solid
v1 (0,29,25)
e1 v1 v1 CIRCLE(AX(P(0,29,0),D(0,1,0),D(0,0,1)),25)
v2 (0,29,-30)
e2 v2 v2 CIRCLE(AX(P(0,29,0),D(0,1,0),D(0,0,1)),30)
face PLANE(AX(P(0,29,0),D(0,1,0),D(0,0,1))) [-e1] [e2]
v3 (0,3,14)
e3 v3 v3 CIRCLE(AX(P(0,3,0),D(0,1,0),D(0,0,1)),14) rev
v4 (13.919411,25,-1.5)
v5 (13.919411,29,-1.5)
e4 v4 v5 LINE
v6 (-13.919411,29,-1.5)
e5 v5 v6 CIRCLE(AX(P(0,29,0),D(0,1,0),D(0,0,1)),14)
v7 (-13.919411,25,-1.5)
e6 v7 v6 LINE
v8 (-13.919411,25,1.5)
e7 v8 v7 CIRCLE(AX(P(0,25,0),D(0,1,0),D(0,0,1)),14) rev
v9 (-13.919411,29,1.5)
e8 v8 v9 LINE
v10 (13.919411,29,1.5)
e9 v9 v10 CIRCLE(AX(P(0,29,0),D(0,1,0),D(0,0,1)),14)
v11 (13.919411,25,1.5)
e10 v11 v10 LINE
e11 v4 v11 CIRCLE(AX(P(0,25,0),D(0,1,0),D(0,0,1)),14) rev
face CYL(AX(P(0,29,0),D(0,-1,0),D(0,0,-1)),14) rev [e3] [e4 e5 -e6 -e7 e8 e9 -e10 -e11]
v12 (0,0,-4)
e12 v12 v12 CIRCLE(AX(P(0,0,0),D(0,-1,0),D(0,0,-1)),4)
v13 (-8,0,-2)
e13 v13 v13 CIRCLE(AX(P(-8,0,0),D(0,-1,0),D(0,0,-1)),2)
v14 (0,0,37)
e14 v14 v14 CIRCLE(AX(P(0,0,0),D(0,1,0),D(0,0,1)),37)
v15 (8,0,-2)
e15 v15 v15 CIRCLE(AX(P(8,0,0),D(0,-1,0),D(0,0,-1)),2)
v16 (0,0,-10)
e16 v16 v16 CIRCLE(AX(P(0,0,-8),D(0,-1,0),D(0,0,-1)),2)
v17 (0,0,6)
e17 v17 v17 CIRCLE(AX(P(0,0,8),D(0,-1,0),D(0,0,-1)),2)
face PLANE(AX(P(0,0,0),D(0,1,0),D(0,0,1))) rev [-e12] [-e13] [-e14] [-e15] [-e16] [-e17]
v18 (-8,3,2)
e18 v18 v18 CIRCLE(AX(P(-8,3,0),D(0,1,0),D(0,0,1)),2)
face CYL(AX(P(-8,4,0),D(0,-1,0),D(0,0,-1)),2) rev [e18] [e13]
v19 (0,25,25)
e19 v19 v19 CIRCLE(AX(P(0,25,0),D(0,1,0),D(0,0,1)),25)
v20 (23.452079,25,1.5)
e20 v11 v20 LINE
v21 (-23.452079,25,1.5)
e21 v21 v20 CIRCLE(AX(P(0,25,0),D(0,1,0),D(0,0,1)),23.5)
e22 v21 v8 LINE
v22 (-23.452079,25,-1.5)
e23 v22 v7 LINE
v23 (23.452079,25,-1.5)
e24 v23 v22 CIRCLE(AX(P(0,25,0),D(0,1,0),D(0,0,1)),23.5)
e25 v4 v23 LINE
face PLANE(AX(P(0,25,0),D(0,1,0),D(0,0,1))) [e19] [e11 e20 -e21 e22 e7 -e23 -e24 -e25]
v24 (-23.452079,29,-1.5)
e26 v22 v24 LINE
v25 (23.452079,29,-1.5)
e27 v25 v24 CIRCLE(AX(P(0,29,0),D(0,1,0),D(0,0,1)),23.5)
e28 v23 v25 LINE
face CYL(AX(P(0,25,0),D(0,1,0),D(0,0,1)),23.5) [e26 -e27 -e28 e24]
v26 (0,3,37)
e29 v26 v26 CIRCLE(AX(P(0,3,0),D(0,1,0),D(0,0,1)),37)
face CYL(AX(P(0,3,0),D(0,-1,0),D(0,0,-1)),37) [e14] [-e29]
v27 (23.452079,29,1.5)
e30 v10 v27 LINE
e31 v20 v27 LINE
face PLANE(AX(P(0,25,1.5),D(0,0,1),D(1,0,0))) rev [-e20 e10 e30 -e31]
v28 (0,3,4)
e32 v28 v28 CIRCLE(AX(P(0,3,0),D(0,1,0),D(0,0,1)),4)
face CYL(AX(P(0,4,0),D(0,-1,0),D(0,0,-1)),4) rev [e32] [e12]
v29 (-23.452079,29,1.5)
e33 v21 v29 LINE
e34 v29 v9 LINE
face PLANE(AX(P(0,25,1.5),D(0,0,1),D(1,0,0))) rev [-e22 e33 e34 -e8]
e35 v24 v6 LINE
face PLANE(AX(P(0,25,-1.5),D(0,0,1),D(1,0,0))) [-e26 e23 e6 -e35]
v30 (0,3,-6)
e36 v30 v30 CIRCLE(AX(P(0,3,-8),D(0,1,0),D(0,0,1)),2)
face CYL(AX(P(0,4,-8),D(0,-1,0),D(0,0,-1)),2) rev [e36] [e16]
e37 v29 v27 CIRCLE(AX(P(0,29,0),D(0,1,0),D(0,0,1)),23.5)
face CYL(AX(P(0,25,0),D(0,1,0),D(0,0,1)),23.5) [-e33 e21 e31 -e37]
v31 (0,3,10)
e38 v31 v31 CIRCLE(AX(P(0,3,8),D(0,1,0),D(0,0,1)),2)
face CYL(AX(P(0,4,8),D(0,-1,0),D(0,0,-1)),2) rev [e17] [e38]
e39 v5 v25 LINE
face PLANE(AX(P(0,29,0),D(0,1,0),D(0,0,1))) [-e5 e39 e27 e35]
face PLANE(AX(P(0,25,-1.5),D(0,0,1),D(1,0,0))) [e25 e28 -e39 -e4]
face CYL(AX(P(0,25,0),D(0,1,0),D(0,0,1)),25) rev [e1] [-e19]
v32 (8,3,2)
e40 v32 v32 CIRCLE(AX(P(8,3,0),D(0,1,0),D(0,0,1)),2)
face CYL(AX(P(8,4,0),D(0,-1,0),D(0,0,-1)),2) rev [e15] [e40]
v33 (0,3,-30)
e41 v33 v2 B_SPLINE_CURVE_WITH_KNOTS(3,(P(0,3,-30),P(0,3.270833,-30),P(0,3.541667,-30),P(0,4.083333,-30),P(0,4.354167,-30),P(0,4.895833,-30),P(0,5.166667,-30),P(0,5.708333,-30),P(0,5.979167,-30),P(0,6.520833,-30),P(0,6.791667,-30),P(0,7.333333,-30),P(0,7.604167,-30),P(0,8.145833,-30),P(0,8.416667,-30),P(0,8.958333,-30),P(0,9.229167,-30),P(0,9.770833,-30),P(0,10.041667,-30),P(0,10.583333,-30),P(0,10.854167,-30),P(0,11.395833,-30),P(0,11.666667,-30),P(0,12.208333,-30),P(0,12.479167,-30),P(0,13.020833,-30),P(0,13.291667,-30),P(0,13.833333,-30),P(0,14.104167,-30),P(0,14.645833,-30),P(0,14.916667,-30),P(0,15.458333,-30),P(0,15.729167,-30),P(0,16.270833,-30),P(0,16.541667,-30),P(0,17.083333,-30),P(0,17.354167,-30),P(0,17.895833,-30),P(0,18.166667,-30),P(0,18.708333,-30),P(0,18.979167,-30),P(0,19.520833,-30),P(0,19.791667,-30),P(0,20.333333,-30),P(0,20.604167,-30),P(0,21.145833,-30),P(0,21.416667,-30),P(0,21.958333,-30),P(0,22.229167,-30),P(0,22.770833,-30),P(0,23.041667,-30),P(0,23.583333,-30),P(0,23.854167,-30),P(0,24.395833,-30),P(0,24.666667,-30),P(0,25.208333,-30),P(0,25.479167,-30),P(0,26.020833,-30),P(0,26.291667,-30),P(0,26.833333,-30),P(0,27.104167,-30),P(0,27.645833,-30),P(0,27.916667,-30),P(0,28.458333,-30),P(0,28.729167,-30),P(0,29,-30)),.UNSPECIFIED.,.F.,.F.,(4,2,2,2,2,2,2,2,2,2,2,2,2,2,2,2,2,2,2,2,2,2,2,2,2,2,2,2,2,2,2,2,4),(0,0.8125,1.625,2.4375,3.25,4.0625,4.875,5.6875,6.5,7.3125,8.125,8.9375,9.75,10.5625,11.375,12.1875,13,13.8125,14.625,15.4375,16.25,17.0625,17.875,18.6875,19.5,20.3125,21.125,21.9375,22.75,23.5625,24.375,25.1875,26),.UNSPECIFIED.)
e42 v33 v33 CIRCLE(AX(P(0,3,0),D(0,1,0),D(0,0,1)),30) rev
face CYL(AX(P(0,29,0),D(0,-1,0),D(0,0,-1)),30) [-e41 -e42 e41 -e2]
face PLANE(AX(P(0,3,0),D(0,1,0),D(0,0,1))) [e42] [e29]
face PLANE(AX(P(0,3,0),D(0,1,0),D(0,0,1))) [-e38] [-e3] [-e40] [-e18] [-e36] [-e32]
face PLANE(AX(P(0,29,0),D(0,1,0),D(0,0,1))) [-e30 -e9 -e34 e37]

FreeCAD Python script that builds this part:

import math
import FreeCAD as App
import Part
import Sketcher

V = App.Vector
Q = App.Units.Quantity

doc = App.newDocument("Part")
body = doc.addObject("PartDesign::Body", "Body")

# Sketch on XZ plane
sketch1 = body.newObject("Sketcher::SketchObject", "Sketch")
sketch1.AttachmentSupport = (doc.getObject("XZ_Plane"), [""])
sketch1.MapMode = "FlatFace"
sketch1.addGeometry(Part.Circle(V(0, 0, 0), V(0, 0, 1), 37), False)
sketch1.addConstraint(Sketcher.Constraint("Coincident", 0, 3, -1, 1))
sketch1.addConstraint(Sketcher.Constraint("Diameter", 0, Q("74 mm")))
pad1 = body.newObject("PartDesign::Pad", "Pad")
pad1.Profile = sketch1
pad1.Length = 3
pad1.Reversed = True

# Sketch on XZ plane
sketch2 = body.newObject("Sketcher::SketchObject", "Sketch001")
sketch2.AttachmentSupport = (doc.getObject("XZ_Plane"), [""])
sketch2.MapMode = "FlatFace"
sketch2.addGeometry(Part.Circle(V(0, 0, 0), V(0, 0, 1), 30), False)
sketch2.addGeometry(Part.Circle(V(0, 0, 0), V(0, 0, 1), 14), False)
sketch2.addConstraint(Sketcher.Constraint("Coincident", 0, 3, -1, 1))
sketch2.addConstraint(Sketcher.Constraint("Coincident", 1, 3, -1, 1))
sketch2.addConstraint(Sketcher.Constraint("Diameter", 0, Q("60 mm")))
sketch2.addConstraint(Sketcher.Constraint("Diameter", 1, Q("28 mm")))
pad2 = body.newObject("PartDesign::Pad", "Pad001")
pad2.Profile = sketch2
pad2.Length = 29
pad2.Reversed = True

# Sketch on XZ plane
sketch3 = body.newObject("Sketcher::SketchObject", "Sketch002")
sketch3.AttachmentSupport = (doc.getObject("XZ_Plane"), [""])
sketch3.MapMode = "FlatFace"
sketch3.AttachmentOffset = App.Placement(V(0, 0, -25), App.Rotation())
sketch3.addGeometry(Part.Circle(V(0, 0, 0), V(0, 0, 1), 25), False)
sketch3.addGeometry(Part.ArcOfCircle(Part.Circle(V(0, 0, 0), V(0, 0, 1), 23.5), math.radians(4), math.radians(176)), False)
sketch3.addGeometry(Part.LineSegment(V(-23.5, 1.5, 0), V(-13.9, 1.5, 0)), False)
sketch3.addGeometry(Part.ArcOfCircle(Part.Circle(V(0, 0, 0), V(0, 0, 1), 14), math.radians(173.85), math.radians(186.15)), False)
sketch3.addGeometry(Part.LineSegment(V(-13.9, -1.5, 0), V(-23.5, -1.5, 0)), False)
sketch3.addGeometry(Part.ArcOfCircle(Part.Circle(V(0, 0, 0), V(0, 0, 1), 23.5), math.radians(-176), math.radians(-4)), False)
sketch3.addGeometry(Part.LineSegment(V(23.5, -1.5, 0), V(13.9, -1.5, 0)), False)
sketch3.addGeometry(Part.ArcOfCircle(Part.Circle(V(0, 0, 0), V(0, 0, 1), 14), math.radians(-6.15), math.radians(0)), False)
sketch3.addGeometry(Part.ArcOfCircle(Part.Circle(V(0, 0, 0), V(0, 0, 1), 14), math.radians(0), math.radians(6.15)), False)
sketch3.addGeometry(Part.LineSegment(V(13.9, 1.5, 0), V(23.5, 1.5, 0)), False)
sketch3.addConstraint(Sketcher.Constraint("Coincident", 1, 2, 2, 1))
sketch3.addConstraint(Sketcher.Constraint("Coincident", 2, 2, 3, 1))
sketch3.addConstraint(Sketcher.Constraint("Coincident", 3, 2, 4, 1))
sketch3.addConstraint(Sketcher.Constraint("Coincident", 4, 2, 5, 1))
sketch3.addConstraint(Sketcher.Constraint("Coincident", 5, 2, 6, 1))
sketch3.addConstraint(Sketcher.Constraint("Coincident", 6, 2, 7, 1))
sketch3.addConstraint(Sketcher.Constraint("Tangent", 7, 2, 8, 1))
sketch3.addConstraint(Sketcher.Constraint("Coincident", 8, 2, 9, 1))
sketch3.addConstraint(Sketcher.Constraint("Coincident", 9, 2, 1, 1))
sketch3.addConstraint(Sketcher.Constraint("Horizontal", 2))
sketch3.addConstraint(Sketcher.Constraint("Horizontal", 4))
sketch3.addConstraint(Sketcher.Constraint("Horizontal", 6))
sketch3.addConstraint(Sketcher.Constraint("Horizontal", 9))
sketch3.addConstraint(Sketcher.Constraint("Coincident", 0, 3, -1, 1))
sketch3.addConstraint(Sketcher.Constraint("Coincident", 1, 3, -1, 1))
sketch3.addConstraint(Sketcher.Constraint("Coincident", 3, 3, -1, 1))
sketch3.addConstraint(Sketcher.Constraint("Coincident", 5, 3, -1, 1))
sketch3.addConstraint(Sketcher.Constraint("Coincident", 7, 3, -1, 1))
sketch3.addConstraint(Sketcher.Constraint("Equal", 1, 5))
sketch3.addConstraint(Sketcher.Constraint("Equal", 3, 7))
sketch3.addConstraint(Sketcher.Constraint("Equal", 7, 8))
sketch3.addConstraint(Sketcher.Constraint("PointOnObject", 7, 2, -1))
sketch3.addConstraint(Sketcher.Constraint("Horizontal", 4, 2, 5, 2))
sketch3.addConstraint(Sketcher.Constraint("Horizontal", 2, 2, 8, 2))
sketch3.addConstraint(Sketcher.Constraint("Vertical", 2, 2, 3, 2))
sketch3.addConstraint(Sketcher.Constraint("Diameter", 0, Q("50 mm")))
sketch3.addConstraint(Sketcher.Constraint("Radius", 3, Q("14 mm")))
sketch3.addConstraint(Sketcher.Constraint("Radius", 1, Q("23.5 mm")))
sketch3.addConstraint(Sketcher.Constraint("DistanceY", 3, 2, 2, 2, Q("3 mm")))
pocket1 = body.newObject("PartDesign::Pocket", "Pocket")
pocket1.Profile = sketch3
pocket1.Length = 4

# Sketch on XZ plane
sketch4 = body.newObject("Sketcher::SketchObject", "Sketch003")
sketch4.AttachmentSupport = (doc.getObject("XZ_Plane"), [""])
sketch4.MapMode = "FlatFace"
sketch4.addGeometry(Part.Circle(V(0, 0, 0), V(0, 0, 1), 4), False)
sketch4.addGeometry(Part.Circle(V(-8, 0, 0), V(0, 0, 1), 2), False)
sketch4.addGeometry(Part.Circle(V(0, 8, 0), V(0, 0, 1), 2), False)
sketch4.addGeometry(Part.Circle(V(8, 0, 0), V(0, 0, 1), 2), False)
sketch4.addGeometry(Part.Circle(V(0, -8, 0), V(0, 0, 1), 2), False)
sketch4.addConstraint(Sketcher.Constraint("Coincident", 0, 3, -1, 1))
sketch4.addConstraint(Sketcher.Constraint("Equal", 1, 2))
sketch4.addConstraint(Sketcher.Constraint("Equal", 2, 3))
sketch4.addConstraint(Sketcher.Constraint("Equal", 3, 4))
sketch4.addConstraint(Sketcher.Constraint("Symmetric", 1, 3, 3, 3, -1, 1))
sketch4.addConstraint(Sketcher.Constraint("Symmetric", 2, 3, 4, 3, -1, 1))
sketch4.addConstraint(Sketcher.Constraint("PointOnObject", 1, 3, -1))
sketch4.addConstraint(Sketcher.Constraint("PointOnObject", 2, 3, -2))
sketch4.addConstraint(Sketcher.Constraint("Diameter", 0, Q("8 mm")))
sketch4.addConstraint(Sketcher.Constraint("Diameter", 1, Q("4 mm")))
sketch4.addConstraint(Sketcher.Constraint("DistanceX", 1, 3, -1, 1, Q("8 mm")))
sketch4.addConstraint(Sketcher.Constraint("DistanceY", -1, 1, 2, 3, Q("8 mm")))
pocket2 = body.newObject("PartDesign::Pocket", "Pocket001")
pocket2.Profile = sketch4
pocket2.Length = 4

doc.recompute()
